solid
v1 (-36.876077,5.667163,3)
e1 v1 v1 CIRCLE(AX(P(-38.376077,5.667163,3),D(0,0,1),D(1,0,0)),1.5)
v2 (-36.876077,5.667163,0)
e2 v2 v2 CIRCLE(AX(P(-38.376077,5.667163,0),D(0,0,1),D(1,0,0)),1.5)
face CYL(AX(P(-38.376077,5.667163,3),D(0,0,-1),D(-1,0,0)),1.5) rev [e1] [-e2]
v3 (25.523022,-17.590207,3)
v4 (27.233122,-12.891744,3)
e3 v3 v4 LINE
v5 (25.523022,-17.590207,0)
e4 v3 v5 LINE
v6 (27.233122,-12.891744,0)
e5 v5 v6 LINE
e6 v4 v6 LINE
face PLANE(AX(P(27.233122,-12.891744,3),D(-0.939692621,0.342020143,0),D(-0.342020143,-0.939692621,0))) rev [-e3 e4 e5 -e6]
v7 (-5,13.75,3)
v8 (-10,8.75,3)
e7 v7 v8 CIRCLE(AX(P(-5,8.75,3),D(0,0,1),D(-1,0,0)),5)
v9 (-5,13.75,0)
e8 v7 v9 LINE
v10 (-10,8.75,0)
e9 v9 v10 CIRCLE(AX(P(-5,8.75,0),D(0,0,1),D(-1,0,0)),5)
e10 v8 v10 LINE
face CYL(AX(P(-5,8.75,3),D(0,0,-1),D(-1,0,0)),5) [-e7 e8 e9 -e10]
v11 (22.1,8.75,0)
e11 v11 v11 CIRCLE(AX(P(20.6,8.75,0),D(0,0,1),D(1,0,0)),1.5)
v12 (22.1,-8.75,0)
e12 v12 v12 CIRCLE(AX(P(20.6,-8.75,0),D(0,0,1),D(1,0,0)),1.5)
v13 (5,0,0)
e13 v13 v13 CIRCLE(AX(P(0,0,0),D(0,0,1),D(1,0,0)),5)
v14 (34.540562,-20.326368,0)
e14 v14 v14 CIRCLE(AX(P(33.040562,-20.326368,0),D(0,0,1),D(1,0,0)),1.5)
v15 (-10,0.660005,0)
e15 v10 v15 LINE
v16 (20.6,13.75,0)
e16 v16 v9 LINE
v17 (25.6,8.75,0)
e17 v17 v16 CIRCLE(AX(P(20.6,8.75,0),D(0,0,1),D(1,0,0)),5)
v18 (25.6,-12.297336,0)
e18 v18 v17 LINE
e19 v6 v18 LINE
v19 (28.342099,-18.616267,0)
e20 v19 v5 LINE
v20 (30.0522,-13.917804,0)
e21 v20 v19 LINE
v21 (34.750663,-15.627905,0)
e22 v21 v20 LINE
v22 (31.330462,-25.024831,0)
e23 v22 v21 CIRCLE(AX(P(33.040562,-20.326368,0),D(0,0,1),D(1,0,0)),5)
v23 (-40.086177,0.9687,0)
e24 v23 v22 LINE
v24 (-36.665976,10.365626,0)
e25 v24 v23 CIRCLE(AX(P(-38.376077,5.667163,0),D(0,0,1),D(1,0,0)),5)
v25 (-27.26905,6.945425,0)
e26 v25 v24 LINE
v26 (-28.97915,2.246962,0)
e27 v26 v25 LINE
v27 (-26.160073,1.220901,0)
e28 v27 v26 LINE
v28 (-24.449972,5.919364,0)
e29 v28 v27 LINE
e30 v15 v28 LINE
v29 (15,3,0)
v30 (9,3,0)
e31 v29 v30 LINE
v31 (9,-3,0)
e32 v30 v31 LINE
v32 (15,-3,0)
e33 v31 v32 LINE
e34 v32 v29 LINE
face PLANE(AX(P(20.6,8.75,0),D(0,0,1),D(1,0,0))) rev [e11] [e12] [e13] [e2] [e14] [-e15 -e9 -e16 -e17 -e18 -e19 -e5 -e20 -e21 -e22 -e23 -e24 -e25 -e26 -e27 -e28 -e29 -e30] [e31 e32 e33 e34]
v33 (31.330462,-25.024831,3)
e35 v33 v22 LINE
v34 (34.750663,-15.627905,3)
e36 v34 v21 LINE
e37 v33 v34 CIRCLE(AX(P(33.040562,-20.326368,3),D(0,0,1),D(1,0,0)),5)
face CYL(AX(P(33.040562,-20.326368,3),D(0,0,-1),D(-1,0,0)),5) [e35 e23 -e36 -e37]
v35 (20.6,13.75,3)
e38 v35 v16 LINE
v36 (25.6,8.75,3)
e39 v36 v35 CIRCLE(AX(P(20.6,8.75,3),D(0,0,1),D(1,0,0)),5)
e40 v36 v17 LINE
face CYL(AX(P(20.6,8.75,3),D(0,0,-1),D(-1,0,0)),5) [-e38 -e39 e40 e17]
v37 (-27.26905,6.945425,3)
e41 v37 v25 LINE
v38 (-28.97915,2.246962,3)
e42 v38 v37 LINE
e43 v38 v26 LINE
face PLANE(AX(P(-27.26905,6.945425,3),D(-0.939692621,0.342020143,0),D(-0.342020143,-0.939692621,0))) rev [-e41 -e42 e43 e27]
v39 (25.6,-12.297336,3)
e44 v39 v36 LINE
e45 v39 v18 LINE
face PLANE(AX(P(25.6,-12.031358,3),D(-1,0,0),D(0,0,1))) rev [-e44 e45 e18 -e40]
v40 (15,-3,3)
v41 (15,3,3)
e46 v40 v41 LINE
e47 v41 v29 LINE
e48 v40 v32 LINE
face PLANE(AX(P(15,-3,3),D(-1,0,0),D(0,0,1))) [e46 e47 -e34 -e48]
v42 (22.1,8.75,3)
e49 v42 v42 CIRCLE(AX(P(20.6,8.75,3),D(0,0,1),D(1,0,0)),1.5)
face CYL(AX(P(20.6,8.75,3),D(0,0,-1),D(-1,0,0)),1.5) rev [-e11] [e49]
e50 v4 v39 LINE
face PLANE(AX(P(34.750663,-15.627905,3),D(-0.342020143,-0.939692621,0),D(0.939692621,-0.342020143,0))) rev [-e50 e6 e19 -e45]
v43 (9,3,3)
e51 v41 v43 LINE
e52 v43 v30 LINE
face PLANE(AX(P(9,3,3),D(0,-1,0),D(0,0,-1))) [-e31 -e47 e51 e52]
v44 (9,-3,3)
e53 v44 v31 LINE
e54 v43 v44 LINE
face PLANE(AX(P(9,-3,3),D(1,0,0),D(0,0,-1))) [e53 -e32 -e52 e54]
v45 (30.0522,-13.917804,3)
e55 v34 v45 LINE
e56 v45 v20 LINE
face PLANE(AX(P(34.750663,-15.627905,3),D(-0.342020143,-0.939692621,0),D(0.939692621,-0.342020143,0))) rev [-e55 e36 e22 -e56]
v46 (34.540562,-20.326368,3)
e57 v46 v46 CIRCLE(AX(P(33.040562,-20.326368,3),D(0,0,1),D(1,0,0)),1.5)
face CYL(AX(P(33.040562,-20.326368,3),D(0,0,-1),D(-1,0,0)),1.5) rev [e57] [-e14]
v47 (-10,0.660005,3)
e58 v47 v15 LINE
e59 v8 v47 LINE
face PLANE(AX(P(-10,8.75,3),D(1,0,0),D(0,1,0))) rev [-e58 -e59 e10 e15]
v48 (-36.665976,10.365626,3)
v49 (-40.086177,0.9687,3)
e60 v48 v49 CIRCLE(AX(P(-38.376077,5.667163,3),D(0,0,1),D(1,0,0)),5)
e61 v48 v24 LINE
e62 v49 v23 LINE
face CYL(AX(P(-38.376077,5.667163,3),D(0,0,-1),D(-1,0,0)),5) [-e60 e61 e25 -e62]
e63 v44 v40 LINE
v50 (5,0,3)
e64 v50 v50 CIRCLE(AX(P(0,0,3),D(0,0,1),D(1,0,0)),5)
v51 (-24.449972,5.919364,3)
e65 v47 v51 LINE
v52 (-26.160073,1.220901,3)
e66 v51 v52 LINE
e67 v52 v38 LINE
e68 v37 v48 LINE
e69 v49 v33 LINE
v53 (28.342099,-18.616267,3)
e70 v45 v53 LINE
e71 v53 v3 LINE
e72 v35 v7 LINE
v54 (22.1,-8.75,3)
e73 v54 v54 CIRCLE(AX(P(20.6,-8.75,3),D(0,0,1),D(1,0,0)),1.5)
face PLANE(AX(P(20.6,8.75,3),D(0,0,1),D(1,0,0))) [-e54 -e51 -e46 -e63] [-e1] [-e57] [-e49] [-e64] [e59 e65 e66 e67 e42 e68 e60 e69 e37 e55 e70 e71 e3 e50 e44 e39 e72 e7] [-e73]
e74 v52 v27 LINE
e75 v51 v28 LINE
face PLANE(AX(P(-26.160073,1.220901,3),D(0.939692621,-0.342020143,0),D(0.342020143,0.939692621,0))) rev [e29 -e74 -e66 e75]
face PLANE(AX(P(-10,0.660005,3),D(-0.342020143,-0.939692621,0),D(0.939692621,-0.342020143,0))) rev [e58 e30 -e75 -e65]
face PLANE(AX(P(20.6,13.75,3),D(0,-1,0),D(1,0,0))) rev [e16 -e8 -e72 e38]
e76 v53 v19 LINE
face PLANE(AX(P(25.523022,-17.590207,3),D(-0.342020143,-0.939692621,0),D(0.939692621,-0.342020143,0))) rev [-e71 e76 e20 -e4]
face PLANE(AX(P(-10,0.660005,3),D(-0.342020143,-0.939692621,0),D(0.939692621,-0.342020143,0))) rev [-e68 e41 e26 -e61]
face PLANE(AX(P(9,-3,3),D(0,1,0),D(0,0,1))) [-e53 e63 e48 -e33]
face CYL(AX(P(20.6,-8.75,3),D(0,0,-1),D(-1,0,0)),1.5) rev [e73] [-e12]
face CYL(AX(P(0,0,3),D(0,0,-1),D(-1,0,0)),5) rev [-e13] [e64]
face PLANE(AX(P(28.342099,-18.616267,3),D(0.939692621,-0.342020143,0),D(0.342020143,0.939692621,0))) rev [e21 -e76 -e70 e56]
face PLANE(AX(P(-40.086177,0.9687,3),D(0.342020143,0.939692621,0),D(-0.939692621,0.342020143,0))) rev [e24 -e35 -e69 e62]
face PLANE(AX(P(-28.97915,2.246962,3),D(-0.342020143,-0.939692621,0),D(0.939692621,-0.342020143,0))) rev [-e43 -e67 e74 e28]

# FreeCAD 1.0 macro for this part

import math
import FreeCAD as App
import Part
import Sketcher

V = App.Vector
Q = App.Units.Quantity


def add_polygon(sketch, points):
    """Adds a closed chain of lines whose ends are joined by coincident constraints."""
    first, n = sketch.GeometryCount, len(points)
    for a, b in zip(points, points[1:] + points[:1]):
        sketch.addGeometry(Part.LineSegment(App.Vector(*a, 0), App.Vector(*b, 0)), False)
    for i in range(n):
        sketch.addConstraint(Sketcher.Constraint("Coincident", first + i, 2, first + (i + 1) % n, 1))

doc = App.newDocument("Part")
params = doc.addObject("Spreadsheet::Sheet", "Params")
for row, (alias, value) in enumerate([
    ("sketch1_diameter", "3 mm"),
    ("sketch1_diameter2", "10 mm"),
    ("sketch1_width", "6 mm"),
    ("sketch1_length", "76 mm"),
    ("sketch1_width2", "25.6 mm"),
    ("pad1_length", "3 mm"),
    ("sketch2_length", "3 mm"),
    ("sketch2_length2", "5 mm"),
], start=1):
    params.set(f"A{row}", alias)
    params.set(f"B{row}", "=" + value)
    params.setAlias(f"B{row}", alias)

body = doc.addObject("PartDesign::Body", "Body")

# Sketch on XY plane
sketch1 = body.newObject("Sketcher::SketchObject", "Sketch")
sketch1.AttachmentSupport = (doc.getObject("XY_Plane"), [""])
sketch1.MapMode = "FlatFace"
sketch1.addGeometry(Part.ArcOfCircle(Part.Circle(V(20.6, 8.8, 0), V(0, 0, 1), 5), math.radians(0), math.radians(90)), False)  # 0
sketch1.addGeometry(Part.LineSegment(V(20.6, 13.8, 0), V(-5, 13.8, 0)), False)  # 1
sketch1.addGeometry(Part.ArcOfCircle(Part.Circle(V(-5, 8.8, 0), V(0, 0, 1), 5), math.radians(90), math.radians(180)), False)  # 2
sketch1.addGeometry(Part.LineSegment(V(-10, 8.8, 0), V(-10, 0.7, 0)), False)  # 3
sketch1.addGeometry(Part.LineSegment(V(-10, 0.7, 0), V(-36.7, 10.4, 0)), False)  # 4
sketch1.addGeometry(Part.ArcOfCircle(Part.Circle(V(-38.4, 5.7, 0), V(0, 0, 1), 5), math.radians(70), math.radians(250)), False)  # 5
sketch1.addGeometry(Part.LineSegment(V(-40.1, 1, 0), V(31.3, -25, 0)), False)  # 6
sketch1.addGeometry(Part.ArcOfCircle(Part.Circle(V(33, -20.3, 0), V(0, 0, 1), 5), math.radians(-110), math.radians(70)), False)  # 7
sketch1.addGeometry(Part.LineSegment(V(34.8, -15.6, 0), V(25.6, -12.3, 0)), False)  # 8
sketch1.addGeometry(Part.LineSegment(V(25.6, -12.3, 0), V(25.6, 8.8, 0)), False)  # 9
sketch1.addGeometry(Part.Circle(V(33, -20.3, 0), V(0, 0, 1), 1.5), False)  # 10
sketch1.addGeometry(Part.Circle(V(20.6, -8.8, 0), V(0, 0, 1), 1.5), False)  # 11
sketch1.addGeometry(Part.Circle(V(-38.4, 5.7, 0), V(0, 0, 1), 1.5), False)  # 12
sketch1.addGeometry(Part.Circle(V(0, 0, 0), V(0, 0, 1), 5), False)  # 13
add_polygon(sketch1, [(15, -3), (9, -3), (9, 3), (15, 3)])  # lines 14-17
sketch1.addGeometry(Part.Circle(V(20.6, 8.8, 0), V(0, 0, 1), 1.5), False)  # 18
sketch1.addConstraint(Sketcher.Constraint("Tangent", 0, 2, 1, 1))
sketch1.addConstraint(Sketcher.Constraint("Tangent", 1, 2, 2, 1))
sketch1.addConstraint(Sketcher.Constraint("Tangent", 2, 2, 3, 1))
sketch1.addConstraint(Sketcher.Constraint("Coincident", 3, 2, 4, 1))
sketch1.addConstraint(Sketcher.Constraint("Tangent", 4, 2, 5, 1))
sketch1.addConstraint(Sketcher.Constraint("Tangent", 5, 2, 6, 1))
sketch1.addConstraint(Sketcher.Constraint("Tangent", 6, 2, 7, 1))
sketch1.addConstraint(Sketcher.Constraint("Tangent", 7, 2, 8, 1))
sketch1.addConstraint(Sketcher.Constraint("Coincident", 8, 2, 9, 1))
sketch1.addConstraint(Sketcher.Constraint("Tangent", 9, 2, 0, 1))
sketch1.addConstraint(Sketcher.Constraint("Horizontal", 1))
sketch1.addConstraint(Sketcher.Constraint("Vertical", 3))
sketch1.addConstraint(Sketcher.Constraint("Vertical", 9))
sketch1.addConstraint(Sketcher.Constraint("Horizontal", 14))
sketch1.addConstraint(Sketcher.Constraint("Vertical", 15))
sketch1.addConstraint(Sketcher.Constraint("Horizontal", 16))
sketch1.addConstraint(Sketcher.Constraint("Vertical", 17))
sketch1.addConstraint(Sketcher.Constraint("Coincident", 13, 3, -1, 1))
sketch1.addConstraint(Sketcher.Constraint("Coincident", 10, 3, 7, 3))
sketch1.addConstraint(Sketcher.Constraint("Coincident", 12, 3, 5, 3))
sketch1.addConstraint(Sketcher.Constraint("Coincident", 18, 3, 0, 3))
sketch1.addConstraint(Sketcher.Constraint("Equal", 0, 2))
sketch1.addConstraint(Sketcher.Constraint("Equal", 2, 5))
sketch1.addConstraint(Sketcher.Constraint("Equal", 5, 7))
sketch1.addConstraint(Sketcher.Constraint("Equal", 10, 11))
sketch1.addConstraint(Sketcher.Constraint("Equal", 11, 12))
sketch1.addConstraint(Sketcher.Constraint("Equal", 7, 13))
sketch1.addConstraint(Sketcher.Constraint("Equal", 12, 18))
sketch1.addConstraint(Sketcher.Constraint("Symmetric", 0, 3, 11, 3, -1))
sketch1.addConstraint(Sketcher.Constraint("Parallel", 4, 6))
sketch1.addConstraint(Sketcher.Constraint("Parallel", 6, 8))
sketch1.addConstraint(Sketcher.Constraint("Equal", 16, 15))
sketch1.addConstraint(Sketcher.Constraint("Diameter", 10, Q("3 mm")))
sketch1.addConstraint(Sketcher.Constraint("Diameter", 13, Q("10 mm")))
sketch1.addConstraint(Sketcher.Constraint("DistanceX", 14, 2, 14, 1, Q("6 mm")))
sketch1.addConstraint(Sketcher.Constraint("Angle", 4, Q("160 deg")))
sketch1.addConstraint(Sketcher.Constraint("Distance", 6, Q("76 mm")))
sketch1.addConstraint(Sketcher.Constraint("DistanceX", 1, 2, 1, 1, Q("25.6 mm")))
sketch1.addConstraint(Sketcher.Constraint("DistanceX", 2, 3, -1, 1, Q("5 mm")))
sketch1.addConstraint(Sketcher.Constraint("DistanceX", -1, 1, 14, 2, Q("9 mm")))
sketch1.addConstraint(Sketcher.Constraint("DistanceY", 14, 2, -1, 1, Q("3 mm")))
sketch1.addConstraint(Sketcher.Constraint("DistanceY", 11, 3, 0, 3, Q("17.5 mm")))
sketch1.addConstraint(Sketcher.Constraint("DistanceY", -1, 1, 5, 2, Q("0.9687 mm")))
sketch1.addConstraint(Sketcher.Constraint("Distance", 4, Q("28.377339 mm")))
sketch1.setExpression("Constraints[36]", "Params.sketch1_diameter")
sketch1.setExpression("Constraints[37]", "Params.sketch1_diameter2")
sketch1.setExpression("Constraints[38]", "Params.sketch1_width")
sketch1.setExpression("Constraints[40]", "Params.sketch1_length")
sketch1.setExpression("Constraints[41]", "Params.sketch1_width2")
pad1 = body.newObject("PartDesign::Pad", "Pad")
pad1.Profile = sketch1
pad1.setExpression("Length", "Params.pad1_length")

# Sketch on XY plane
sketch2 = body.newObject("Sketcher::SketchObject", "Sketch001")
sketch2.AttachmentSupport = (doc.getObject("XY_Plane"), [""])
sketch2.MapMode = "FlatFace"
add_polygon(sketch2, [(-27.3, 6.9), (-24.4, 5.9), (-26.2, 1.2), (-29, 2.2)])  # lines 0-3
add_polygon(sketch2, [(27.2, -12.9), (30.1, -13.9), (28.3, -18.6), (25.5, -17.6)])  # lines 4-7
sketch2.addConstraint(Sketcher.Constraint("Perpendicular", 0, 1))
sketch2.addConstraint(Sketcher.Constraint("Perpendicular", 1, 2))
sketch2.addConstraint(Sketcher.Constraint("Perpendicular", 2, 3))
sketch2.addConstraint(Sketcher.Constraint("Perpendicular", 3, 4))
sketch2.addConstraint(Sketcher.Constraint("Perpendicular", 4, 5))
sketch2.addConstraint(Sketcher.Constraint("Perpendicular", 5, 6))
sketch2.addConstraint(Sketcher.Constraint("Perpendicular", 6, 7))
sketch2.addConstraint(Sketcher.Constraint("Equal", 2, 4))
sketch2.addConstraint(Sketcher.Constraint("Equal", 3, 5))
sketch2.addConstraint(Sketcher.Constraint("Angle", 0, Q("-20 deg")))
sketch2.addConstraint(Sketcher.Constraint("Distance", 0, Q("3 mm")))
sketch2.addConstraint(Sketcher.Constraint("Distance", 1, Q("5 mm")))
sketch2.addConstraint(Sketcher.Constraint("DistanceY", -1, 1, 1, 2, Q("1.220901 mm")))
sketch2.addConstraint(Sketcher.Constraint("DistanceX", -1, 1, 4, 2, Q("30.0522 mm")))
sketch2.addConstraint(Sketcher.Constraint("DistanceX", 0, 2, -1, 1, Q("24.449972 mm")))
sketch2.addConstraint(Sketcher.Constraint("DistanceY", 4, 2, 0, 2, Q("19.837168 mm")))
sketch2.setExpression("Constraints[18]", "Params.sketch2_length")
sketch2.setExpression("Constraints[19]", "Params.sketch2_length2")
pocket1 = body.newObject("PartDesign::Pocket", "Pocket")
pocket1.Profile = sketch2
pocket1.Type = "ThroughAll"
pocket1.Reversed = True

doc.recompute()
